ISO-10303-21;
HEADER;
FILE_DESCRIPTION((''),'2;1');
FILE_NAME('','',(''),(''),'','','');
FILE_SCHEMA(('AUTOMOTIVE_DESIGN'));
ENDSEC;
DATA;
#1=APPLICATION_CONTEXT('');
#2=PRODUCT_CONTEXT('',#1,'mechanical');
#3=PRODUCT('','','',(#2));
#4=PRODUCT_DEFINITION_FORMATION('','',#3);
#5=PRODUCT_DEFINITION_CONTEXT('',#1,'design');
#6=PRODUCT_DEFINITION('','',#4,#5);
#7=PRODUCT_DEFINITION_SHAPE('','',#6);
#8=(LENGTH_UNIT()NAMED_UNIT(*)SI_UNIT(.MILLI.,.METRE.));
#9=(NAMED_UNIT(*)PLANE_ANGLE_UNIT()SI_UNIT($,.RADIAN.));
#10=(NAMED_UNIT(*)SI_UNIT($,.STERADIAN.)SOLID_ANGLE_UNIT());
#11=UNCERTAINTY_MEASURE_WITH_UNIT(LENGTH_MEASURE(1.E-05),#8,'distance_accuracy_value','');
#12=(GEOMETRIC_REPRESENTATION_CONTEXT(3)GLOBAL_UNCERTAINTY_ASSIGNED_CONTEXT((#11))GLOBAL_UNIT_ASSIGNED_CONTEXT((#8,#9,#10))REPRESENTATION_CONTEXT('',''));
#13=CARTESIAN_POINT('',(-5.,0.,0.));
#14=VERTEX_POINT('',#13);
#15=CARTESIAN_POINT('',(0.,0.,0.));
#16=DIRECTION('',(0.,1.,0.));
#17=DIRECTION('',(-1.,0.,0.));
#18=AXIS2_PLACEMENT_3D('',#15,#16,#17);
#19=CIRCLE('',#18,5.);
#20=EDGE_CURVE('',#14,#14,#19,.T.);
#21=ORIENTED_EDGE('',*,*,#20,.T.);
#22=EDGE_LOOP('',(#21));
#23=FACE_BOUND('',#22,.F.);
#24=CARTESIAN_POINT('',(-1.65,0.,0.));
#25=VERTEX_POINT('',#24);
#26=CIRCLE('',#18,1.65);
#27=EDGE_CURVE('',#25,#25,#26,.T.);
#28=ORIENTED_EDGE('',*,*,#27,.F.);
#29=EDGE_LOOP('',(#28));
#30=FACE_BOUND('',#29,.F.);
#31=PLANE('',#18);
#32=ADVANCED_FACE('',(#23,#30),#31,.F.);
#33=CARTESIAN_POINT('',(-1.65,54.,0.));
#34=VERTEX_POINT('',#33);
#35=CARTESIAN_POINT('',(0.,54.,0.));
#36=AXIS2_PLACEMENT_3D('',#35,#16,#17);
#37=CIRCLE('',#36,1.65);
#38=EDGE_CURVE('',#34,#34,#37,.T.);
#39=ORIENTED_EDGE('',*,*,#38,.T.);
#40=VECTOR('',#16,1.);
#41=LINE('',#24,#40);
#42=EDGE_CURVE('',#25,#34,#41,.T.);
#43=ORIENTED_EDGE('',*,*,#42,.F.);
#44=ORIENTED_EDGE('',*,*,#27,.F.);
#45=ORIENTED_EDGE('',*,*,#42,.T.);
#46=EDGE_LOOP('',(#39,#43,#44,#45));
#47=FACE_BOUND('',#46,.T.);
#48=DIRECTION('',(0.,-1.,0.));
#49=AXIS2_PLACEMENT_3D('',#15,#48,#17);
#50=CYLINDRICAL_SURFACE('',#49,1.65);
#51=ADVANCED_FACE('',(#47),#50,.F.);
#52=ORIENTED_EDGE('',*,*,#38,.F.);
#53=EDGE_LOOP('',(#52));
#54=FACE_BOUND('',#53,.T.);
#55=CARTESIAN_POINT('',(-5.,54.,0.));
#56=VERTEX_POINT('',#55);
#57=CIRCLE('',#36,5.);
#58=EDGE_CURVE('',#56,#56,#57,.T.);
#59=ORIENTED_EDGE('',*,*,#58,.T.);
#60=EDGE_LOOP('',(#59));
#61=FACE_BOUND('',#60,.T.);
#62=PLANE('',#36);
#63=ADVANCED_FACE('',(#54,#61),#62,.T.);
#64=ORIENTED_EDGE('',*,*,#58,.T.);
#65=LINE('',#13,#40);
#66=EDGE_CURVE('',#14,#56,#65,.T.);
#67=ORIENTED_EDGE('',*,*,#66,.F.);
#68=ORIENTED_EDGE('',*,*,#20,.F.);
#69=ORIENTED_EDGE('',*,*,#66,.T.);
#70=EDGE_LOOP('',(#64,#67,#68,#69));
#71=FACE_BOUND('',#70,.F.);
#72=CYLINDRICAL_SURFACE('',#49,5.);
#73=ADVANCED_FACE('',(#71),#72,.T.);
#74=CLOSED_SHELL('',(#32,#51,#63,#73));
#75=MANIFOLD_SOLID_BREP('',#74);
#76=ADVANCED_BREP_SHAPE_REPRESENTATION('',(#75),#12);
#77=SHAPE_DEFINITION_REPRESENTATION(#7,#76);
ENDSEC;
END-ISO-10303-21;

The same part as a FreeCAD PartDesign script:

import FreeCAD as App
import Part
import Sketcher
from FreeCAD import Vector

doc = App.newDocument("Part")
body = doc.addObject("PartDesign::Body", "Body")

# Sketch on XZ plane
sketch1 = body.newObject("Sketcher::SketchObject", "Sketch")
sketch1.AttachmentSupport = (doc.getObject("XZ_Plane"), [""])
sketch1.MapMode = "FlatFace"
sketch1.addGeometry([
    Part.Circle(Vector(0, 0, 0), Vector(0, 0, 1), 5),
    Part.Circle(Vector(0, 0, 0), Vector(0, 0, 1), 1.6),
], False)
sketch1.addConstraint([
    Sketcher.Constraint("Coincident", 0, 3, -1, 1),
    Sketcher.Constraint("Coincident", 1, 3, -1, 1),
    Sketcher.Constraint("Diameter", 0, 10.0),
    Sketcher.Constraint("Diameter", 1, 3.3),
])
pad1 = body.newObject("PartDesign::Pad", "Pad")
pad1.Profile = sketch1
pad1.Length = 54
pad1.Reversed = True

doc.recompute()
